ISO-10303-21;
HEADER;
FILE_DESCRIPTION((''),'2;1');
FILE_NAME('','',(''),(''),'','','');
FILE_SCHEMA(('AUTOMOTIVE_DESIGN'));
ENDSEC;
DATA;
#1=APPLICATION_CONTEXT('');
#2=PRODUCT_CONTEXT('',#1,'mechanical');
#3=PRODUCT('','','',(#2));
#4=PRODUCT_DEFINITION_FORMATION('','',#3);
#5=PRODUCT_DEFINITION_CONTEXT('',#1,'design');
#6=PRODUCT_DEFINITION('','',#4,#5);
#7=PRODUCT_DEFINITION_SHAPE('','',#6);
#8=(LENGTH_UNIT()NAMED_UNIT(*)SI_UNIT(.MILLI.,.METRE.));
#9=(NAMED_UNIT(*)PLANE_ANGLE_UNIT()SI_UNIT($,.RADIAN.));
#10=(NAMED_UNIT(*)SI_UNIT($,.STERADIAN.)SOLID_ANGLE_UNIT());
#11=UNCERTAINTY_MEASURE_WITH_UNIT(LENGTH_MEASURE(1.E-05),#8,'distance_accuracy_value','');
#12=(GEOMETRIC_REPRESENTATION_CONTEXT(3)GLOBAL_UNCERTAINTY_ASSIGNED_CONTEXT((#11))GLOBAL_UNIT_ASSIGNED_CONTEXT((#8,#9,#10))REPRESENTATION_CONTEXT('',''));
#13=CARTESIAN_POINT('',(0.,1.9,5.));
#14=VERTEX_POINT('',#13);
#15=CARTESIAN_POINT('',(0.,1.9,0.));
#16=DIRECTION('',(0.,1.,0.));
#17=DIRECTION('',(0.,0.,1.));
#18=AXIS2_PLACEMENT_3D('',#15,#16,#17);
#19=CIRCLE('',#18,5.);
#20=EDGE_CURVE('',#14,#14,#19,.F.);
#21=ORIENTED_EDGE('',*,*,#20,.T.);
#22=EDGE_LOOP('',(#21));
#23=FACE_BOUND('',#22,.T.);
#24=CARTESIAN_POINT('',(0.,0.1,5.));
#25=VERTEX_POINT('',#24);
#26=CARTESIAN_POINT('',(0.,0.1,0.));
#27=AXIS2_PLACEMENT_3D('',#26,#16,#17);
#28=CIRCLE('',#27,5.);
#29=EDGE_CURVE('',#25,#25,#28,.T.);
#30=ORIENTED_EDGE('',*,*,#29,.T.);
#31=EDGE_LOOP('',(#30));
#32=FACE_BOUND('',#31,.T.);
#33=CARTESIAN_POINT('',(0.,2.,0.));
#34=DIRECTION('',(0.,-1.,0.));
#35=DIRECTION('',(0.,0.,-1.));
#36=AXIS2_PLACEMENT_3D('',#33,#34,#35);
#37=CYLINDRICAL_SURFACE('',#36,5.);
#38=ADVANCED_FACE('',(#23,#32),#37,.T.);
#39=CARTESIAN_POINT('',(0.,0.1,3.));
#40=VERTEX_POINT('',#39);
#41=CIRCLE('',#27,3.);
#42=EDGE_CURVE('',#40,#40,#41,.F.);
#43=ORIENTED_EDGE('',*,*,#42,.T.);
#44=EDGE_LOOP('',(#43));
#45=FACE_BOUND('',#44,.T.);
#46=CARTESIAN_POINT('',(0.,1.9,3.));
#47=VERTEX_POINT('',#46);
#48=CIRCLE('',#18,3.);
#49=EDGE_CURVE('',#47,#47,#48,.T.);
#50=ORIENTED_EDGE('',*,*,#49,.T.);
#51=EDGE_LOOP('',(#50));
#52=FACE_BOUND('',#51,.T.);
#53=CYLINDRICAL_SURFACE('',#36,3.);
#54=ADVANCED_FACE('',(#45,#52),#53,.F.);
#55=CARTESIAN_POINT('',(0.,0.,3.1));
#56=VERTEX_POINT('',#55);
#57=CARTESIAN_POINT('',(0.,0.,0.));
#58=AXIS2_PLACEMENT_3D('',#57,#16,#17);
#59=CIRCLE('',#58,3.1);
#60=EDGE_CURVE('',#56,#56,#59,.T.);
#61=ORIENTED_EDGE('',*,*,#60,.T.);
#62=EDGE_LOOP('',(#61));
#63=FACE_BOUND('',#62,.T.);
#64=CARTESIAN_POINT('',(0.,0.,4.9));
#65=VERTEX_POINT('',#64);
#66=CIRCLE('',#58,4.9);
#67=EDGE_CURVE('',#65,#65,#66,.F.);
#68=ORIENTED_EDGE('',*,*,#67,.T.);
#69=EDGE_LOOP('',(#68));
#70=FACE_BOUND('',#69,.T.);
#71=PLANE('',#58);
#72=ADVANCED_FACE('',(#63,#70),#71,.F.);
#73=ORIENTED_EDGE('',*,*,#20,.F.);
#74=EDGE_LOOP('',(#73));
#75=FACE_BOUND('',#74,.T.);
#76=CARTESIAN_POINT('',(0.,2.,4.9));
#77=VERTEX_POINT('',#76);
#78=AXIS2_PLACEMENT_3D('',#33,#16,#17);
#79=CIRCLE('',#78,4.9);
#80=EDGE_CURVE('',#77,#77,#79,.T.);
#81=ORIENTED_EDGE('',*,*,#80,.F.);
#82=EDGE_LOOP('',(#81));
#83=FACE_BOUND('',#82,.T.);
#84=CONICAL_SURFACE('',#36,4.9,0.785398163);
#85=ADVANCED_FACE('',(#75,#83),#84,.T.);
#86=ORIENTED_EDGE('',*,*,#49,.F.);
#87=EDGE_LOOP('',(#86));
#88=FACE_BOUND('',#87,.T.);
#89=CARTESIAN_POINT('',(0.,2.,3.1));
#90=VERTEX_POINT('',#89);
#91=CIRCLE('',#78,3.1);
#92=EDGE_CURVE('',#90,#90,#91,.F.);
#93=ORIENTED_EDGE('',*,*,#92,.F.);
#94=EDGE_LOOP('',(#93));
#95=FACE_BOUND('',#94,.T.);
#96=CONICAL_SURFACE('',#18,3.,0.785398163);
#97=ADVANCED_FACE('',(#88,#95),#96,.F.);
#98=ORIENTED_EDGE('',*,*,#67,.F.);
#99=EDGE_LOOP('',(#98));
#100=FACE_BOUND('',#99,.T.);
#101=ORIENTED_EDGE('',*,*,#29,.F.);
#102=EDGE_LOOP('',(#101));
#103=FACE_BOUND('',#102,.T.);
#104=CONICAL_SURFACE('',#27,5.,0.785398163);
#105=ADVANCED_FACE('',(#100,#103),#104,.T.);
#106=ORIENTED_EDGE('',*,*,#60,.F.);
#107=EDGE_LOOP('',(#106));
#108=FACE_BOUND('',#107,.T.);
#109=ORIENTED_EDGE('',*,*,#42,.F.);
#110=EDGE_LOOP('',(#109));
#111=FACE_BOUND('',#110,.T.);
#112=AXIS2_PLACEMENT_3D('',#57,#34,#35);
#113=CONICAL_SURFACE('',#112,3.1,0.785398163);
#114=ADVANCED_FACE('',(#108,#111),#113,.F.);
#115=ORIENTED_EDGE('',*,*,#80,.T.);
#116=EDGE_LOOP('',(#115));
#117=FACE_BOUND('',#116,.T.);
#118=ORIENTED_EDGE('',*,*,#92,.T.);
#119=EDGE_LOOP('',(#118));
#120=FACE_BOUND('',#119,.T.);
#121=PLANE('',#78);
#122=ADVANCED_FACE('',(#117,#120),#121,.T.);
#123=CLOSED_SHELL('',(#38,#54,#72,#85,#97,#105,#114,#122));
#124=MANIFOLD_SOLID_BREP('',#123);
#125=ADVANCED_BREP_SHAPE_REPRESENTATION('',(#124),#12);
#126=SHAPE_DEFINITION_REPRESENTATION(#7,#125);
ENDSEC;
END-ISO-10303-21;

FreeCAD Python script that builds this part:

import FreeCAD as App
import Part
import Sketcher

V = App.Vector


def edges_at(feature, points):
    """Names of the edges that pass closest to the given points."""
    edges = feature.Shape.Edges
    near = lambda p: min(range(len(edges)), key=lambda i: edges[i].distToShape(Part.Vertex(*p))[0])
    return sorted({f"Edge{near(p) + 1}" for p in points})

doc = App.newDocument("Part")
body = doc.addObject("PartDesign::Body", "Body")

# Sketch on XZ plane
sketch1 = body.newObject("Sketcher::SketchObject", "Sketch")
sketch1.AttachmentSupport = (doc.getObject("XZ_Plane"), [""])
sketch1.MapMode = "FlatFace"
sketch1.addGeometry(Part.Circle(V(0, 0, 0), V(0, 0, 1), 5), False)
sketch1.addGeometry(Part.Circle(V(0, 0, 0), V(0, 0, 1), 3), False)
sketch1.addConstraint(Sketcher.Constraint("Coincident", 0, 3, -1, 1))
sketch1.addConstraint(Sketcher.Constraint("Coincident", 1, 3, -1, 1))
sketch1.addConstraint(Sketcher.Constraint("Diameter", 0, 10.0))
sketch1.addConstraint(Sketcher.Constraint("Diameter", 1, 6.0))
pad1 = body.newObject("PartDesign::Pad", "Pad")
pad1.Profile = sketch1
pad1.Length = 2
pad1.Reversed = True
doc.recompute()

chamfer = body.newObject("PartDesign::Chamfer", "Chamfer")
chamfer.Base = (pad1, edges_at(pad1, [
    (0, 0, -5),
    (0, 2, -5),
    (0, 0, -3),
    (0, 2, -3),
]))
chamfer.Size = 0.1

doc.recompute()
